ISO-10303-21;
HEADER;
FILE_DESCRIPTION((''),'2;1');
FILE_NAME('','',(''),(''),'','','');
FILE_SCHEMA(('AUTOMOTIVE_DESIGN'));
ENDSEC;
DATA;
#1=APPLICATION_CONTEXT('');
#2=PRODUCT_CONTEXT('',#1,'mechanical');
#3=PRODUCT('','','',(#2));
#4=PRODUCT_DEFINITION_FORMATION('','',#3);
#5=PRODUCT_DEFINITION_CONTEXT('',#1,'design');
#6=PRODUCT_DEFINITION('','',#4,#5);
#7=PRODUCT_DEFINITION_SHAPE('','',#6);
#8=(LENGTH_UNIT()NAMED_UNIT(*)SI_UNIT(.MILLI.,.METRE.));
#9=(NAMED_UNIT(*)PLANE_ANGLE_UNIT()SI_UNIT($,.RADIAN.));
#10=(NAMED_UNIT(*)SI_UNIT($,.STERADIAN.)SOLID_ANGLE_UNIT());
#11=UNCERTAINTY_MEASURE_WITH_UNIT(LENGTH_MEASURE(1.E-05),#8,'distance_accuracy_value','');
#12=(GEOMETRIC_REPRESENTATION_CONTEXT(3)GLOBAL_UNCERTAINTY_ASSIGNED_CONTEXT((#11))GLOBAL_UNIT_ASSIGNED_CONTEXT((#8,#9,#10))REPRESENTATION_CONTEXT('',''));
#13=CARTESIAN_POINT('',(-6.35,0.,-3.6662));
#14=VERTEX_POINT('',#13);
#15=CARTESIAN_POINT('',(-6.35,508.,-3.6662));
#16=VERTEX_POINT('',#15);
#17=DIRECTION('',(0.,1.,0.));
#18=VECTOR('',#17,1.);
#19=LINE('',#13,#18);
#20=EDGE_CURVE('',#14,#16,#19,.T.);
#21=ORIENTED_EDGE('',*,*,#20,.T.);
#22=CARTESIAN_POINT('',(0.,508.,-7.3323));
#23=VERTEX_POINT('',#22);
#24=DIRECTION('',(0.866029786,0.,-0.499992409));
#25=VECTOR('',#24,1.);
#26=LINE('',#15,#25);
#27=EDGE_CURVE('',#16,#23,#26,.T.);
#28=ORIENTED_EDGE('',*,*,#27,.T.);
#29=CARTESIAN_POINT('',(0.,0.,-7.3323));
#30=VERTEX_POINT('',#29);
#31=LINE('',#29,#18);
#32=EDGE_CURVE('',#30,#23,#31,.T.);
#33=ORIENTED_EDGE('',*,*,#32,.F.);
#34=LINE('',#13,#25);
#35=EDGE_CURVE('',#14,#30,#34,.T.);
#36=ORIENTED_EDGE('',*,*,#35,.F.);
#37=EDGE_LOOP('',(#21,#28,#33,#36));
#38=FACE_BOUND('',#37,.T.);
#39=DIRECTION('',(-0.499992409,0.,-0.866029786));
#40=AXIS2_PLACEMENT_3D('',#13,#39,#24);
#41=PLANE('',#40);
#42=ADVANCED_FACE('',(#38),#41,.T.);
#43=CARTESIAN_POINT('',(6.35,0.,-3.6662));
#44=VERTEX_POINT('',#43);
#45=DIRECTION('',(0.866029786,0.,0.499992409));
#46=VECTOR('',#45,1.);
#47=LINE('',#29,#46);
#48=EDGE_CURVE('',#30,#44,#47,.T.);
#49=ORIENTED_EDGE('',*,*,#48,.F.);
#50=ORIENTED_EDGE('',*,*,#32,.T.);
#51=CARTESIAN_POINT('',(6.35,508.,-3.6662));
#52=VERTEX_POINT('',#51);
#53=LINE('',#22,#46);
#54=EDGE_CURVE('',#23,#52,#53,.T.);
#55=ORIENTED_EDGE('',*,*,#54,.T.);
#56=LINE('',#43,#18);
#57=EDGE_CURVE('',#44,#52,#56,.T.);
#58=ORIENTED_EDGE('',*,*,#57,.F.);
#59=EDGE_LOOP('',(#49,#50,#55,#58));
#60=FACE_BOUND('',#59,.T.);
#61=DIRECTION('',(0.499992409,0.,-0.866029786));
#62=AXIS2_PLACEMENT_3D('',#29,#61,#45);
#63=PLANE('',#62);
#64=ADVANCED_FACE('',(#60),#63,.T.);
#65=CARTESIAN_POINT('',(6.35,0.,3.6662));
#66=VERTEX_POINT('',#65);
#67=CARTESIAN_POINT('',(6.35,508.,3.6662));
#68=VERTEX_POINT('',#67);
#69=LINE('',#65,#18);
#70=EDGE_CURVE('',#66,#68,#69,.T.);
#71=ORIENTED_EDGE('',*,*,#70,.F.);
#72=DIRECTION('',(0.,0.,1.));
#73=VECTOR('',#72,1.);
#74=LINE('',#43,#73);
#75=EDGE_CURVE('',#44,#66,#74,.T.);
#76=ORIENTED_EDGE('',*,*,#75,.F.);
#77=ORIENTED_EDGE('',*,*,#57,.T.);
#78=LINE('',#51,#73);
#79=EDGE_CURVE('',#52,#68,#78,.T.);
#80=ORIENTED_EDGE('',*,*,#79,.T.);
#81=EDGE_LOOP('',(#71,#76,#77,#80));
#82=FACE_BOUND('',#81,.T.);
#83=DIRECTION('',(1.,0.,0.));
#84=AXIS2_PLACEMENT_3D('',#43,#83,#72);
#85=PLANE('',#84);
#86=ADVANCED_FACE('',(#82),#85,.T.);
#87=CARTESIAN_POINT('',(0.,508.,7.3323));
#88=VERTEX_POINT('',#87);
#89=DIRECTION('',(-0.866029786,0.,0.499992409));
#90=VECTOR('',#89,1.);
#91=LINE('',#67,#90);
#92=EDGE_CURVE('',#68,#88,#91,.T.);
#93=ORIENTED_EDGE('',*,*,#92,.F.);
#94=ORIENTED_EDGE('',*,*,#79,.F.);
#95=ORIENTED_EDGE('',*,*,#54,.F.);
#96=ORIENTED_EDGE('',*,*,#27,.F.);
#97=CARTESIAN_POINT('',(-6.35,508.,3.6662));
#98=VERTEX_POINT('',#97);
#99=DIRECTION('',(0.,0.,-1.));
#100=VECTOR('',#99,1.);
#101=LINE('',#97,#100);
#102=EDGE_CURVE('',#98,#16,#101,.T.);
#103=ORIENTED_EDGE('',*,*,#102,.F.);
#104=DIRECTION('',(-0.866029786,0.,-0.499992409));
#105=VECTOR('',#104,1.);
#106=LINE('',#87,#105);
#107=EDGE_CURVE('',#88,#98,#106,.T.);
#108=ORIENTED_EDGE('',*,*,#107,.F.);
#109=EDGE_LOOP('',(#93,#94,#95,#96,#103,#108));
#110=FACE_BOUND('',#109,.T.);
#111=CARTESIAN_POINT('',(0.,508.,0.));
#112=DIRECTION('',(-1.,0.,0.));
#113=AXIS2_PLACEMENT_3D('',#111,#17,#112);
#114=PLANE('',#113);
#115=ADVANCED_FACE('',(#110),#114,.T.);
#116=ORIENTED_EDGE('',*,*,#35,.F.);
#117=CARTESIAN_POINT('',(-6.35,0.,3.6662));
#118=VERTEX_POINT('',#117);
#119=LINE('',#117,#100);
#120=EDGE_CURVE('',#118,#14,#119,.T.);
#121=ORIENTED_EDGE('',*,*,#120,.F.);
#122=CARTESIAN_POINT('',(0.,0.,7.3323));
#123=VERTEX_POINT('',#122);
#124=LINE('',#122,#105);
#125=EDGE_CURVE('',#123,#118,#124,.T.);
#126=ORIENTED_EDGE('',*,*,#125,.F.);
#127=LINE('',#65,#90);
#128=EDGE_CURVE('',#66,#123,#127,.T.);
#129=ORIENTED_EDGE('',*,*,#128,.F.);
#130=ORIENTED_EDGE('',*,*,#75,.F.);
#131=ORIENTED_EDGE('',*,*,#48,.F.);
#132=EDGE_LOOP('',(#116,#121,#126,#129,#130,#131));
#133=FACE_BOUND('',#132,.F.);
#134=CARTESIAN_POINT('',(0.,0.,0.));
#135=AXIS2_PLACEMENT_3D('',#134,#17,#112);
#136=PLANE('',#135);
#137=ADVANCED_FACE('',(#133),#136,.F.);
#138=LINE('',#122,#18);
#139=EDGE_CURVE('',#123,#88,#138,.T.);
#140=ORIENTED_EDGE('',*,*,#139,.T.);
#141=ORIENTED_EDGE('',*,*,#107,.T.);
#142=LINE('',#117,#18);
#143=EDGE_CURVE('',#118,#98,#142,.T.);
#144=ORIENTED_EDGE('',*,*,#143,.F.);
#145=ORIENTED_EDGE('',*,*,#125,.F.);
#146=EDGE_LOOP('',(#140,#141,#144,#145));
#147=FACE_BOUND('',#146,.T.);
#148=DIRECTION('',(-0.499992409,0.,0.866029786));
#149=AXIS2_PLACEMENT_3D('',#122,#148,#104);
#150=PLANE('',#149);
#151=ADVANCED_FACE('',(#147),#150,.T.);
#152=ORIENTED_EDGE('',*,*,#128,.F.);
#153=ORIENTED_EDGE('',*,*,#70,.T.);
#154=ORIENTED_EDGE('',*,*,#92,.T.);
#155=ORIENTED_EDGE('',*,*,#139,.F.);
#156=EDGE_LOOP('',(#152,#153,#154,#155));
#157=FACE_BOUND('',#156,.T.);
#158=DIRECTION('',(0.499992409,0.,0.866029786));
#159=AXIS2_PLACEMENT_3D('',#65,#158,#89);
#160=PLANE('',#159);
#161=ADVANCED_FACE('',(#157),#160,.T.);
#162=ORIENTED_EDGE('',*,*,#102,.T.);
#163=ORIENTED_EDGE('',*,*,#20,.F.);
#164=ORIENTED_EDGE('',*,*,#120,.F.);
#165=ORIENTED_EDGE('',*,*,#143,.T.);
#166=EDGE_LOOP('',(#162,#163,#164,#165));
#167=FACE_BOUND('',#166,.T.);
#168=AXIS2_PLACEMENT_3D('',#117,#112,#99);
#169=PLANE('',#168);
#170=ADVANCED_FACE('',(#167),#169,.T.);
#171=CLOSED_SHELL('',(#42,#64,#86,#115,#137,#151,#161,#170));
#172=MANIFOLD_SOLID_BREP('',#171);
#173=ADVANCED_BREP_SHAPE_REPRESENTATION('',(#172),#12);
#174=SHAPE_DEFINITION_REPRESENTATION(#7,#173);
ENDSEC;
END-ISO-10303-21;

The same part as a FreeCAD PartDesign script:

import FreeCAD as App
import Part
import Sketcher
from FreeCAD import Vector
Q = App.Units.Quantity

doc = App.newDocument("Part")
body = doc.addObject("PartDesign::Body", "Body")

sketch1 = doc.addObject("Sketcher::SketchObject", "Sketch")
body.addObject(sketch1)
sketch1.AttachmentSupport = (doc.XZ_Plane, [""])
sketch1.MapMode = "FlatFace"
sketch1.addGeometry(Part.LineSegment(Vector(6, -4, 0), Vector(0, -7, 0)), False)
sketch1.addGeometry(Part.LineSegment(Vector(0, -7, 0), Vector(-6, -4, 0)), False)
sketch1.addGeometry(Part.LineSegment(Vector(-6, -4, 0), Vector(-6, 4, 0)), False)
sketch1.addGeometry(Part.LineSegment(Vector(-6, 4, 0), Vector(0, 7, 0)), False)
sketch1.addGeometry(Part.LineSegment(Vector(0, 7, 0), Vector(6, 4, 0)), False)
sketch1.addGeometry(Part.LineSegment(Vector(6, 4, 0), Vector(6, -4, 0)), False)
sketch1.addConstraint(Sketcher.Constraint("Coincident", 0, 2, 1, 1))
sketch1.addConstraint(Sketcher.Constraint("Coincident", 1, 2, 2, 1))
sketch1.addConstraint(Sketcher.Constraint("Coincident", 2, 2, 3, 1))
sketch1.addConstraint(Sketcher.Constraint("Coincident", 3, 2, 4, 1))
sketch1.addConstraint(Sketcher.Constraint("Coincident", 4, 2, 5, 1))
sketch1.addConstraint(Sketcher.Constraint("Coincident", 5, 2, 0, 1))
sketch1.addConstraint(Sketcher.Constraint("Vertical", 2))
sketch1.addConstraint(Sketcher.Constraint("Vertical", 5))
sketch1.addConstraint(Sketcher.Constraint("Symmetric", 0, 2, 3, 2, -1, 1))
sketch1.addConstraint(Sketcher.Constraint("Symmetric", 1, 2, 4, 2, -1, 1))
sketch1.addConstraint(Sketcher.Constraint("PointOnObject", 0, 2, -2))
sketch1.addConstraint(Sketcher.Constraint("Parallel", 0, 3))
sketch1.addConstraint(Sketcher.Constraint("Horizontal", 2, 2, 4, 2))
sketch1.addConstraint(Sketcher.Constraint("DistanceX", 2, 2, 4, 2, Q("0.5 in")))
sketch1.addConstraint(Sketcher.Constraint("Angle", 0, Q("-150.0005 deg")))
sketch1.addConstraint(Sketcher.Constraint("DistanceY", 0, 2, 2, 2, Q("0.433 in")))
pad1 = doc.addObject("PartDesign::Pad", "Pad")
body.addObject(pad1)
pad1.Profile = sketch1
pad1.Length = Q("20 in")
pad1.Reversed = True

doc.recompute()
